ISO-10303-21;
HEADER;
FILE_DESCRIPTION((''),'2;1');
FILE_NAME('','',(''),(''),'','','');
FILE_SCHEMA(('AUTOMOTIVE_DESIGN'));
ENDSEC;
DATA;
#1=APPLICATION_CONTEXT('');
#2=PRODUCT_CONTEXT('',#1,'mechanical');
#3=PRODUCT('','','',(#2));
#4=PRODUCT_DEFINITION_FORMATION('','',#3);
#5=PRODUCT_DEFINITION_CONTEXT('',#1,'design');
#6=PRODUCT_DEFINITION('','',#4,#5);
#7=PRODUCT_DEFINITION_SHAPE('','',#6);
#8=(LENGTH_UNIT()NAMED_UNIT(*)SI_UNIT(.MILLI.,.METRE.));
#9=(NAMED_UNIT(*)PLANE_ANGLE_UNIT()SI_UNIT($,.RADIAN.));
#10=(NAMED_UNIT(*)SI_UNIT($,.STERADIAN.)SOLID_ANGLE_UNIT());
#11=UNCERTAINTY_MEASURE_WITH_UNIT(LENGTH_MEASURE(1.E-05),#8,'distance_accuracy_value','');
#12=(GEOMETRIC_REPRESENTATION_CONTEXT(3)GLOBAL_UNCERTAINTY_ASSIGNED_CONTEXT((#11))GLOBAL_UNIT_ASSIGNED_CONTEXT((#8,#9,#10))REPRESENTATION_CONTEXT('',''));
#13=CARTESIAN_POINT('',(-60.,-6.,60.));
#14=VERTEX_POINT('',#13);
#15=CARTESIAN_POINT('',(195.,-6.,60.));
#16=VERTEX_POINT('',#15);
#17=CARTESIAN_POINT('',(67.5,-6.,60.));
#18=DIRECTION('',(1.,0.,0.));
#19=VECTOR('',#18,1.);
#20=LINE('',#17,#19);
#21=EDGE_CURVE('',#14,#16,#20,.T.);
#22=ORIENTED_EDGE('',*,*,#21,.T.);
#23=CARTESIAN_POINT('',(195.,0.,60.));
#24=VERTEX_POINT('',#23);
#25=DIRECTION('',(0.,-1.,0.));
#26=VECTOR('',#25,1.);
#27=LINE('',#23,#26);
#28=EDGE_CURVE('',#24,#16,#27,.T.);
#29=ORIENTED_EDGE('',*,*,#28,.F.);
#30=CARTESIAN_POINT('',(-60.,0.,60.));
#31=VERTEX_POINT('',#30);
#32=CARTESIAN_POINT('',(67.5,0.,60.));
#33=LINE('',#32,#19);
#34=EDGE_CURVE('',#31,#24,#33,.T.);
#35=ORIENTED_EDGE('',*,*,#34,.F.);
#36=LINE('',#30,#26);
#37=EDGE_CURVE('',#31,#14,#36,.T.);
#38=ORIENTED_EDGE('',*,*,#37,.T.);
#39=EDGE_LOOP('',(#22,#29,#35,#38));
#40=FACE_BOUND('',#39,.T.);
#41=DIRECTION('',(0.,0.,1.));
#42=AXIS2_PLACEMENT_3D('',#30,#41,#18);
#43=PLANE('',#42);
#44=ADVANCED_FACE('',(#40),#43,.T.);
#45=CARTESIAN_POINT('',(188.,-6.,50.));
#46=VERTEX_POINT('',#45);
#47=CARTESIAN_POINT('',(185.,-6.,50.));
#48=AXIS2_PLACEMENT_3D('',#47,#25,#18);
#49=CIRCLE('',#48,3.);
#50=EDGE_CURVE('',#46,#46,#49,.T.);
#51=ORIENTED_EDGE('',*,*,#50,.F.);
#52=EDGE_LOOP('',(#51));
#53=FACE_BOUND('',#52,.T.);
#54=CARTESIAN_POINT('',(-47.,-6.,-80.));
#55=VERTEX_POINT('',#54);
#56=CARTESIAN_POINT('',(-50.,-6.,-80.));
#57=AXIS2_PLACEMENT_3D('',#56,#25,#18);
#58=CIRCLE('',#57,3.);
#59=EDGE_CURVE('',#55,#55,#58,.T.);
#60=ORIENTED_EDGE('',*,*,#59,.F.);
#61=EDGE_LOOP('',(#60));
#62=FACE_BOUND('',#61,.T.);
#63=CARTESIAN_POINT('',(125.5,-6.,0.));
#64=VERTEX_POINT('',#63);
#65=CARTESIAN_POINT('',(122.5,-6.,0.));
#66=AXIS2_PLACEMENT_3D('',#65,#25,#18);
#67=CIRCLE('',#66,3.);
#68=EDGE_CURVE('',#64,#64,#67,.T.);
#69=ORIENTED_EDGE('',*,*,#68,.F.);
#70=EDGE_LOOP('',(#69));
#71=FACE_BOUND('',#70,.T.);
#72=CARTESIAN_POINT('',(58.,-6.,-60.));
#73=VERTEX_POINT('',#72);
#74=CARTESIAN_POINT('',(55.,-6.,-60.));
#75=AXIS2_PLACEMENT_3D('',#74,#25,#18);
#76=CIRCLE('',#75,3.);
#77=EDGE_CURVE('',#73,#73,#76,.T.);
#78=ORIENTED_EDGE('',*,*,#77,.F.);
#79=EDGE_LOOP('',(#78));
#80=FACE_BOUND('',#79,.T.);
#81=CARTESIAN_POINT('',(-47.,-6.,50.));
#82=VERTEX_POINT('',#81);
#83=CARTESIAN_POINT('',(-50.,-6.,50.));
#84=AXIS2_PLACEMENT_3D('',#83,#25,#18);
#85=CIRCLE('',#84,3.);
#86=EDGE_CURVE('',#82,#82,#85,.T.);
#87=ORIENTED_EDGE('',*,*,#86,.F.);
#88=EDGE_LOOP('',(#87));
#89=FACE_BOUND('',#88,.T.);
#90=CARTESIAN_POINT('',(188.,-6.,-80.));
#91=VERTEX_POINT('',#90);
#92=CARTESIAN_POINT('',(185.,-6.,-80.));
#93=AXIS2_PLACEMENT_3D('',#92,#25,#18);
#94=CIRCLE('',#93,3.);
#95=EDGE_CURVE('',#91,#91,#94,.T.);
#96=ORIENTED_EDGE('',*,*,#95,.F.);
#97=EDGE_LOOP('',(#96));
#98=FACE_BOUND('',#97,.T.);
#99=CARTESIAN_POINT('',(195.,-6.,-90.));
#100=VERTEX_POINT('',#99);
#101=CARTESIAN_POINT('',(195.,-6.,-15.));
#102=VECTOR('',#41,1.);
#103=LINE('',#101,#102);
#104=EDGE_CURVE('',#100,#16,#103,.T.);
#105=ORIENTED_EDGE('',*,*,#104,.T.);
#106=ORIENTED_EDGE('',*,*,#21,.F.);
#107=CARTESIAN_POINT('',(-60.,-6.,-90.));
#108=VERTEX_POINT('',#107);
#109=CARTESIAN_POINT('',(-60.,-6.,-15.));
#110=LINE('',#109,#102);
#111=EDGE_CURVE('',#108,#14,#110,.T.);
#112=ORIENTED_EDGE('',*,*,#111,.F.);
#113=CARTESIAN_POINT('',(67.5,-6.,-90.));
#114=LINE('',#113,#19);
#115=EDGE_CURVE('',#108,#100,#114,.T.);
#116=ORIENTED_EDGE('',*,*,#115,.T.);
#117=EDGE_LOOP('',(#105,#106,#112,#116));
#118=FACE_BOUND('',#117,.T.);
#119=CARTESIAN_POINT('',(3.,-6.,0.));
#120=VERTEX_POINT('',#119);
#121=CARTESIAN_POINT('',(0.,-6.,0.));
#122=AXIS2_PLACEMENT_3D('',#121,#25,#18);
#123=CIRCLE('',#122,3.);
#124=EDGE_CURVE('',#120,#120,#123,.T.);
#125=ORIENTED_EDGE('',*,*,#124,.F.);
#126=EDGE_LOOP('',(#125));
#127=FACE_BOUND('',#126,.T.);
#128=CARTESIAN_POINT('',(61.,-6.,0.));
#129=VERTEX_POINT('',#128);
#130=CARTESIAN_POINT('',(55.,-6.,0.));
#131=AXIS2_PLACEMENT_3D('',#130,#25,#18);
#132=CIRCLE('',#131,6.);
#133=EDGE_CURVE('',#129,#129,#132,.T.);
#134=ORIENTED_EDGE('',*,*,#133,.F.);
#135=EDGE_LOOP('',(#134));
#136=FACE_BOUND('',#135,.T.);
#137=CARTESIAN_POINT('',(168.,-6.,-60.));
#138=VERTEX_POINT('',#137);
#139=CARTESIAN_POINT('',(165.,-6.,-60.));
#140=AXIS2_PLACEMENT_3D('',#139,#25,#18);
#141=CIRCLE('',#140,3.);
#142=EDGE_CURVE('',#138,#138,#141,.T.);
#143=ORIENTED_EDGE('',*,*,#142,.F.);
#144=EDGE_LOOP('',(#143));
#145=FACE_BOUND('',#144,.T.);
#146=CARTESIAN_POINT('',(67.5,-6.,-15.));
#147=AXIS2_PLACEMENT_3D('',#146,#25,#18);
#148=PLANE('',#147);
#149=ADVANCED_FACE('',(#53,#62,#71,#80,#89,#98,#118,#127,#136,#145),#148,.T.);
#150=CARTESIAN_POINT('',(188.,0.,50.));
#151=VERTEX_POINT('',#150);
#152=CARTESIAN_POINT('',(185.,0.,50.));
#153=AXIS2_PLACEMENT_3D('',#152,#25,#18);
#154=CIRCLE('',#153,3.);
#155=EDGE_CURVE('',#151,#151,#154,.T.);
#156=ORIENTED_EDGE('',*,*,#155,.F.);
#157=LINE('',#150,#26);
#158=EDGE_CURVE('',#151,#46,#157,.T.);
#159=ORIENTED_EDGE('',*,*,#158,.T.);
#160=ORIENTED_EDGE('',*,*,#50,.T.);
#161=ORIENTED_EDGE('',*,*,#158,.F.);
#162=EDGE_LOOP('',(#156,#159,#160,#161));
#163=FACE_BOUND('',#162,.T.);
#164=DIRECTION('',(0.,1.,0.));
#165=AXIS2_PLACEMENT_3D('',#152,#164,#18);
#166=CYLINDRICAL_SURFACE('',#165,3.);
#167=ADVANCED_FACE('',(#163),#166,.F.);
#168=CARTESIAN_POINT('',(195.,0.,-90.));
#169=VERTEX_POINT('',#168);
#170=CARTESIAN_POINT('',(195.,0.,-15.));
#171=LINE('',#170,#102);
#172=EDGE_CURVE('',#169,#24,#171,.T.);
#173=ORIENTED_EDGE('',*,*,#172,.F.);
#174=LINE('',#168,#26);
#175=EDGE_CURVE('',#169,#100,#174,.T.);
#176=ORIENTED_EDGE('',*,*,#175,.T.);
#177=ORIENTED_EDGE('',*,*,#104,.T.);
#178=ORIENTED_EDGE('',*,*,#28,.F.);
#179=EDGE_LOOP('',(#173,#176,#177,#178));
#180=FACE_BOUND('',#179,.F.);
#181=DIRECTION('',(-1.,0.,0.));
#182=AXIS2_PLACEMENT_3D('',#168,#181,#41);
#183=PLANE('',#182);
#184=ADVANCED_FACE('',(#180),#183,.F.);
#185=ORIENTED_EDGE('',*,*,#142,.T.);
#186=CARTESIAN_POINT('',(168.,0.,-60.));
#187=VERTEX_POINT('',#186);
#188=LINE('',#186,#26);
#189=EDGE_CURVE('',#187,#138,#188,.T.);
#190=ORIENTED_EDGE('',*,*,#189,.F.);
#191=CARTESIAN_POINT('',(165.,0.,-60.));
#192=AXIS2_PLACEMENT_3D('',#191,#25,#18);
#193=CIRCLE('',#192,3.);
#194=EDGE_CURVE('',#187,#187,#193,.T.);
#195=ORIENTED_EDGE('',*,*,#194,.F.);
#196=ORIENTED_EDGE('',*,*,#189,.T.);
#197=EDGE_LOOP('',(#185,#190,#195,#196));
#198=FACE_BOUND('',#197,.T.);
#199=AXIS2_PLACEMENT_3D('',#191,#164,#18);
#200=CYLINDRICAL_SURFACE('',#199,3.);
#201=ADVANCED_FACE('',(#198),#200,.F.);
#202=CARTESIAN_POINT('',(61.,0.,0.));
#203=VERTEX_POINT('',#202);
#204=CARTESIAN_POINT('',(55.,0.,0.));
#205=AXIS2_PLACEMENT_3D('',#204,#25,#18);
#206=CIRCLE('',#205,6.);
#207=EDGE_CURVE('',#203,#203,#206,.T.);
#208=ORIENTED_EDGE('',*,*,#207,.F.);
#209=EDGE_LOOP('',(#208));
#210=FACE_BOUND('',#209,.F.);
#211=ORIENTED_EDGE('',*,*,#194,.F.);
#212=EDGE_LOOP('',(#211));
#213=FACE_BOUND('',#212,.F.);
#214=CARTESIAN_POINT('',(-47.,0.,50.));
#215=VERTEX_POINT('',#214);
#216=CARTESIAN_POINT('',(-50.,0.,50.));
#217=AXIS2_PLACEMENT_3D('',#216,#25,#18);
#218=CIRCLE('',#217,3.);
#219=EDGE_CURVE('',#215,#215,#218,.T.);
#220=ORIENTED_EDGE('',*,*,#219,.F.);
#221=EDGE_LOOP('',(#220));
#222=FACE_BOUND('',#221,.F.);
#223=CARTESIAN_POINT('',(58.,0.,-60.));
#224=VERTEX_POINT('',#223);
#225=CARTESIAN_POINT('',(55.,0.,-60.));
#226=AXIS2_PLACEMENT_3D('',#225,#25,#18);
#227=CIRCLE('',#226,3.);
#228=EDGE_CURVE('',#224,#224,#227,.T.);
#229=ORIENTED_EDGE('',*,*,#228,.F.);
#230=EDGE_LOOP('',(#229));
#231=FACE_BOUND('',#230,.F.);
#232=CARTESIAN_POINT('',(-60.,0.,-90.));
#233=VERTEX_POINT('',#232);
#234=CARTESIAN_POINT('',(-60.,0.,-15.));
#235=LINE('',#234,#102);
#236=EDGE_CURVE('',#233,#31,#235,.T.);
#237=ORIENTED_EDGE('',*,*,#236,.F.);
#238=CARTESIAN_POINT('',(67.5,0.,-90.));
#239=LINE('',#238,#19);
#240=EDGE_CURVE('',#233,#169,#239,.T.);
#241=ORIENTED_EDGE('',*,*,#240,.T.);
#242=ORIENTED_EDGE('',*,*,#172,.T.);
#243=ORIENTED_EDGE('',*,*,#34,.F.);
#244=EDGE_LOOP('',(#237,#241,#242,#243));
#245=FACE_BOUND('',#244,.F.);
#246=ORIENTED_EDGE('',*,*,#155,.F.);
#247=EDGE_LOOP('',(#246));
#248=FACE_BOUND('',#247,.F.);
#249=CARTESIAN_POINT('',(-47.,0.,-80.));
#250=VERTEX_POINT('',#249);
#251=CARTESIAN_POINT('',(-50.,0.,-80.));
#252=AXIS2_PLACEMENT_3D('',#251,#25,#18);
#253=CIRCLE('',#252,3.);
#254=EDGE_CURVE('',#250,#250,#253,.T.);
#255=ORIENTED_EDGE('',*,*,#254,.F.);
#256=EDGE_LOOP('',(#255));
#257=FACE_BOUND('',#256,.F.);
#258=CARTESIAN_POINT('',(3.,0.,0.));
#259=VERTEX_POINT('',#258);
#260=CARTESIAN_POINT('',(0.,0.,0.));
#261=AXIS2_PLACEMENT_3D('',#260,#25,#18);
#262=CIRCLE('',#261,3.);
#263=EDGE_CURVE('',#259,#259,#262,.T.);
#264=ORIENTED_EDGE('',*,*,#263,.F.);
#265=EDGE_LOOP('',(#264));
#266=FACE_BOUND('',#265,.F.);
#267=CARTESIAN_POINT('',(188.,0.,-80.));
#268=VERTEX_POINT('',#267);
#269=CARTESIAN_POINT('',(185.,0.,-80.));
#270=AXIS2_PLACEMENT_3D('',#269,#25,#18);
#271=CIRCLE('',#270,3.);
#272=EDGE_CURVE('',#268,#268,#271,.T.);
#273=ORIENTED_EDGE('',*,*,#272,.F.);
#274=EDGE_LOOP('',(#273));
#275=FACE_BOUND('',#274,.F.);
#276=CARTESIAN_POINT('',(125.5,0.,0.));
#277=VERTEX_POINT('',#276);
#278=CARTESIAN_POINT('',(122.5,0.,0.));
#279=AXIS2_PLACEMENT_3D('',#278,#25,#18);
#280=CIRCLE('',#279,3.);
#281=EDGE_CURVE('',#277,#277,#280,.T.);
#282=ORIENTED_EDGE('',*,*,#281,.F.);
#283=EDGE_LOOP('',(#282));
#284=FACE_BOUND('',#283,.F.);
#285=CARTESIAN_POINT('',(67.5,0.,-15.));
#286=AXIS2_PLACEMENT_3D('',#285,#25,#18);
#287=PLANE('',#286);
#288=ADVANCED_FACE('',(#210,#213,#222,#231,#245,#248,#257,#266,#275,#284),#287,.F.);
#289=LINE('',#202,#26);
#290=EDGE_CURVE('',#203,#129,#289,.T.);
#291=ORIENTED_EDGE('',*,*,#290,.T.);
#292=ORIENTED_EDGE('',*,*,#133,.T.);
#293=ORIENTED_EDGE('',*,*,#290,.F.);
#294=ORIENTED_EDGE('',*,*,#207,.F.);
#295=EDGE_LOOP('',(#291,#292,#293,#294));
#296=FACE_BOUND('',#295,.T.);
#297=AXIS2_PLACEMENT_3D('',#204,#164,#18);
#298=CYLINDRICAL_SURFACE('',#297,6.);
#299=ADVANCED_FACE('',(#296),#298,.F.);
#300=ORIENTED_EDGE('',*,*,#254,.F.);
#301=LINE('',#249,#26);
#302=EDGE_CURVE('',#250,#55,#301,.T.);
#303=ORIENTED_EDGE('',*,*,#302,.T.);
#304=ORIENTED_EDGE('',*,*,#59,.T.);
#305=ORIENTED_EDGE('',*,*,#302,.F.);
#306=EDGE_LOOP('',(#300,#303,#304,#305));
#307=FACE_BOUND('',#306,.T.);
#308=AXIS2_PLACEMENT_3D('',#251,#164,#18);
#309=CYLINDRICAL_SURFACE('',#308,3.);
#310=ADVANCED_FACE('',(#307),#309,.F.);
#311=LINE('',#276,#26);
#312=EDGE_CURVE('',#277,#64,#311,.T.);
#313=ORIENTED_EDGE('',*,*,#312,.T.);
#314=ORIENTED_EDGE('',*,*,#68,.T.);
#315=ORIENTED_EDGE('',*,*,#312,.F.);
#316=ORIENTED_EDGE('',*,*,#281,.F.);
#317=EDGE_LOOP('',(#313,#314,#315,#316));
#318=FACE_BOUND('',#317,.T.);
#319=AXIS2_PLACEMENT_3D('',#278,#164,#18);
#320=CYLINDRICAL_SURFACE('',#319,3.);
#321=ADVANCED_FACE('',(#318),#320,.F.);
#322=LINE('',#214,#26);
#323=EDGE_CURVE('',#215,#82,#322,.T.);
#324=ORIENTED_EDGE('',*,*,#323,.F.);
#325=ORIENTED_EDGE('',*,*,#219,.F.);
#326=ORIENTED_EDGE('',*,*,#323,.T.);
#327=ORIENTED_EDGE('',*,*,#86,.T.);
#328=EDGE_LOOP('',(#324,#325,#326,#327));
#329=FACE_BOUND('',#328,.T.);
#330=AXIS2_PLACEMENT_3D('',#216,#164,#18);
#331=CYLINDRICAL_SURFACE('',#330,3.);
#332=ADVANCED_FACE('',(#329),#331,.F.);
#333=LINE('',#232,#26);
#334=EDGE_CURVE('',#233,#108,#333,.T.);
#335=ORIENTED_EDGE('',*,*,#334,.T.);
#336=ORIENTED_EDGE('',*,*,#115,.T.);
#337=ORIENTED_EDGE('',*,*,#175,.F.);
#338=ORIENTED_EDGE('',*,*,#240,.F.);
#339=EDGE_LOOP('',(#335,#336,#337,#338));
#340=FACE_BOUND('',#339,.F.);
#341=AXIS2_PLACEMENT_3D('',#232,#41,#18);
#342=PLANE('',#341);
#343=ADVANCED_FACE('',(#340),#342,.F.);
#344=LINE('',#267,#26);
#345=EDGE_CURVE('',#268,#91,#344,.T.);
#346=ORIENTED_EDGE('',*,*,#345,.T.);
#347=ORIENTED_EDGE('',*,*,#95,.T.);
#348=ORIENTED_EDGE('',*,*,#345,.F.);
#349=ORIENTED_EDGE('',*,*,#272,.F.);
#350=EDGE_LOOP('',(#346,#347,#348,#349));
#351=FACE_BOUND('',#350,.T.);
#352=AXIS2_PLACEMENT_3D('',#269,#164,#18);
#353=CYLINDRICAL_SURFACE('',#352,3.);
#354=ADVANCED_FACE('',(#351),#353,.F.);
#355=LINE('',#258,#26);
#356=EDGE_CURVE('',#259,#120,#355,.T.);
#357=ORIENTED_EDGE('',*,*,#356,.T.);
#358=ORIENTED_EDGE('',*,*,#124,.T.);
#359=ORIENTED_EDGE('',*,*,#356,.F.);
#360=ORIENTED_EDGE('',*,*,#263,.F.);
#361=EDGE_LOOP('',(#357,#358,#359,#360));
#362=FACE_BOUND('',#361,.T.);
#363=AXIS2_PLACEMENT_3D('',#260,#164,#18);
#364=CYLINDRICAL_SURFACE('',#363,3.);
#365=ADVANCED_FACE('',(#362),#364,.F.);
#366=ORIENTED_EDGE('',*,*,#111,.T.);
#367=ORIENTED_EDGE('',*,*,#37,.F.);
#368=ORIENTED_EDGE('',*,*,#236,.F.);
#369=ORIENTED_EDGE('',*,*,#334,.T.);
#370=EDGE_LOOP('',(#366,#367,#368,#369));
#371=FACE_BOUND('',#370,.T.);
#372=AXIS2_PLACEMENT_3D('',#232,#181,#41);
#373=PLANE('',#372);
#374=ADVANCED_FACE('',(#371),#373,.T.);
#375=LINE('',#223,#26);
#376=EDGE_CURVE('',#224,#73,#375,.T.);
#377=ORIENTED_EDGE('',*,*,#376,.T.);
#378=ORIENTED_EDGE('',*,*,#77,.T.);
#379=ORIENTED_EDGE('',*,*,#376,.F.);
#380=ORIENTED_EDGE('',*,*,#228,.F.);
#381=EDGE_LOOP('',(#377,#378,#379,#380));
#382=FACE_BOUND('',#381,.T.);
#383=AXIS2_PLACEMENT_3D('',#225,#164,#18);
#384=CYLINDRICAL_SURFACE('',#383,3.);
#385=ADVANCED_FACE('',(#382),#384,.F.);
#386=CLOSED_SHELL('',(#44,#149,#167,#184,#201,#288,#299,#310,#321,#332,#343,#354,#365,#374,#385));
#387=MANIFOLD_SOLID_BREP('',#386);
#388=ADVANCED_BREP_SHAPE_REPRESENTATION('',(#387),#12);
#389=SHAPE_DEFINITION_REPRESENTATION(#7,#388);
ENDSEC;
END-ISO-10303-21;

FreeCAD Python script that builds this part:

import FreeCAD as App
import Part
import Sketcher
from FreeCAD import Vector
Q = App.Units.Quantity

doc = App.newDocument("Part")
body = doc.addObject("PartDesign::Body", "Body")

sketch1 = body.newObject("Sketcher::SketchObject", "Sketch")
sketch1.AttachmentSupport = (doc.getObject("XZ_Plane"), [""])
sketch1.MapMode = "FlatFace"
sketch1.addGeometry([
    Part.LineSegment(Vector(-60, 60, 0), Vector(-60, -90, 0)),
    Part.LineSegment(Vector(-60, -90, 0), Vector(195, -90, 0)),
    Part.LineSegment(Vector(195, -90, 0), Vector(195, 60, 0)),
    Part.LineSegment(Vector(195, 60, 0), Vector(-60, 60, 0)),
    Part.Circle(Vector(-50, -80, 0), Vector(0, 0, 1), 3),
    Part.Circle(Vector(55, -60, 0), Vector(0, 0, 1), 3),
    Part.Circle(Vector(185, -80, 0), Vector(0, 0, 1), 3),
    Part.Circle(Vector(165, -60, 0), Vector(0, 0, 1), 3),
    Part.Circle(Vector(0, 0, 0), Vector(0, 0, 1), 3),
    Part.Circle(Vector(55, 0, 0), Vector(0, 0, 1), 6),
    Part.Circle(Vector(-50, 50, 0), Vector(0, 0, 1), 3),
    Part.Circle(Vector(122.5, 0, 0), Vector(0, 0, 1), 3),
    Part.Circle(Vector(185, 50, 0), Vector(0, 0, 1), 3),
], False)
sketch1.addConstraint([
    Sketcher.Constraint("Coincident", 0, 2, 1, 1),
    Sketcher.Constraint("Coincident", 1, 2, 2, 1),
    Sketcher.Constraint("Coincident", 2, 2, 3, 1),
    Sketcher.Constraint("Coincident", 3, 2, 0, 1),
    Sketcher.Constraint("Vertical", 0),
    Sketcher.Constraint("Horizontal", 1),
    Sketcher.Constraint("Vertical", 2),
    Sketcher.Constraint("Horizontal", 3),
    Sketcher.Constraint("Coincident", 8, 3, -1, 1),
    Sketcher.Constraint("Equal", 4, 5),
    Sketcher.Constraint("Equal", 5, 6),
    Sketcher.Constraint("Equal", 6, 7),
    Sketcher.Constraint("Equal", 7, 8),
    Sketcher.Constraint("Equal", 8, 10),
    Sketcher.Constraint("Equal", 10, 11),
    Sketcher.Constraint("Equal", 11, 12),
    Sketcher.Constraint("PointOnObject", 9, 3, -1),
    Sketcher.Constraint("PointOnObject", 11, 3, -1),
    Sketcher.Constraint("Horizontal", 4, 3, 6, 3),
    Sketcher.Constraint("Horizontal", 5, 3, 7, 3),
    Sketcher.Constraint("Horizontal", 10, 3, 12, 3),
    Sketcher.Constraint("Vertical", 5, 3, 9, 3),
    Sketcher.Constraint("Vertical", 4, 3, 10, 3),
    Sketcher.Constraint("Vertical", 6, 3, 12, 3),
    Sketcher.Constraint("Diameter", 4, Q("6 mm")),
    Sketcher.Constraint("Diameter", 9, Q("12 mm")),
    Sketcher.Constraint("DistanceX", 1, 1, 1, 2, Q("255 mm")),
    Sketcher.Constraint("DistanceY", 0, 2, 0, 1, Q("150 mm")),
    Sketcher.Constraint("DistanceX", 4, 3, -1, 1, Q("50 mm")),
    Sketcher.Constraint("DistanceY", 4, 3, -1, 1, Q("80 mm")),
    Sketcher.Constraint("DistanceX", -1, 1, 5, 3, Q("55 mm")),
    Sketcher.Constraint("DistanceY", 5, 3, -1, 1, Q("60 mm")),
    Sketcher.Constraint("DistanceX", -1, 1, 6, 3, Q("185 mm")),
    Sketcher.Constraint("DistanceX", -1, 1, 7, 3, Q("165 mm")),
    Sketcher.Constraint("DistanceY", -1, 1, 10, 3, Q("50 mm")),
    Sketcher.Constraint("DistanceX", 0, 2, -1, 1, Q("60 mm")),
    Sketcher.Constraint("DistanceY", 0, 2, -1, 1, Q("90 mm")),
    Sketcher.Constraint("DistanceX", -1, 1, 11, 3, Q("122.5 mm")),
])
pad1 = body.newObject("PartDesign::Pad", "Pad")
pad1.Profile = sketch1
pad1.Length = 6

doc.recompute()
